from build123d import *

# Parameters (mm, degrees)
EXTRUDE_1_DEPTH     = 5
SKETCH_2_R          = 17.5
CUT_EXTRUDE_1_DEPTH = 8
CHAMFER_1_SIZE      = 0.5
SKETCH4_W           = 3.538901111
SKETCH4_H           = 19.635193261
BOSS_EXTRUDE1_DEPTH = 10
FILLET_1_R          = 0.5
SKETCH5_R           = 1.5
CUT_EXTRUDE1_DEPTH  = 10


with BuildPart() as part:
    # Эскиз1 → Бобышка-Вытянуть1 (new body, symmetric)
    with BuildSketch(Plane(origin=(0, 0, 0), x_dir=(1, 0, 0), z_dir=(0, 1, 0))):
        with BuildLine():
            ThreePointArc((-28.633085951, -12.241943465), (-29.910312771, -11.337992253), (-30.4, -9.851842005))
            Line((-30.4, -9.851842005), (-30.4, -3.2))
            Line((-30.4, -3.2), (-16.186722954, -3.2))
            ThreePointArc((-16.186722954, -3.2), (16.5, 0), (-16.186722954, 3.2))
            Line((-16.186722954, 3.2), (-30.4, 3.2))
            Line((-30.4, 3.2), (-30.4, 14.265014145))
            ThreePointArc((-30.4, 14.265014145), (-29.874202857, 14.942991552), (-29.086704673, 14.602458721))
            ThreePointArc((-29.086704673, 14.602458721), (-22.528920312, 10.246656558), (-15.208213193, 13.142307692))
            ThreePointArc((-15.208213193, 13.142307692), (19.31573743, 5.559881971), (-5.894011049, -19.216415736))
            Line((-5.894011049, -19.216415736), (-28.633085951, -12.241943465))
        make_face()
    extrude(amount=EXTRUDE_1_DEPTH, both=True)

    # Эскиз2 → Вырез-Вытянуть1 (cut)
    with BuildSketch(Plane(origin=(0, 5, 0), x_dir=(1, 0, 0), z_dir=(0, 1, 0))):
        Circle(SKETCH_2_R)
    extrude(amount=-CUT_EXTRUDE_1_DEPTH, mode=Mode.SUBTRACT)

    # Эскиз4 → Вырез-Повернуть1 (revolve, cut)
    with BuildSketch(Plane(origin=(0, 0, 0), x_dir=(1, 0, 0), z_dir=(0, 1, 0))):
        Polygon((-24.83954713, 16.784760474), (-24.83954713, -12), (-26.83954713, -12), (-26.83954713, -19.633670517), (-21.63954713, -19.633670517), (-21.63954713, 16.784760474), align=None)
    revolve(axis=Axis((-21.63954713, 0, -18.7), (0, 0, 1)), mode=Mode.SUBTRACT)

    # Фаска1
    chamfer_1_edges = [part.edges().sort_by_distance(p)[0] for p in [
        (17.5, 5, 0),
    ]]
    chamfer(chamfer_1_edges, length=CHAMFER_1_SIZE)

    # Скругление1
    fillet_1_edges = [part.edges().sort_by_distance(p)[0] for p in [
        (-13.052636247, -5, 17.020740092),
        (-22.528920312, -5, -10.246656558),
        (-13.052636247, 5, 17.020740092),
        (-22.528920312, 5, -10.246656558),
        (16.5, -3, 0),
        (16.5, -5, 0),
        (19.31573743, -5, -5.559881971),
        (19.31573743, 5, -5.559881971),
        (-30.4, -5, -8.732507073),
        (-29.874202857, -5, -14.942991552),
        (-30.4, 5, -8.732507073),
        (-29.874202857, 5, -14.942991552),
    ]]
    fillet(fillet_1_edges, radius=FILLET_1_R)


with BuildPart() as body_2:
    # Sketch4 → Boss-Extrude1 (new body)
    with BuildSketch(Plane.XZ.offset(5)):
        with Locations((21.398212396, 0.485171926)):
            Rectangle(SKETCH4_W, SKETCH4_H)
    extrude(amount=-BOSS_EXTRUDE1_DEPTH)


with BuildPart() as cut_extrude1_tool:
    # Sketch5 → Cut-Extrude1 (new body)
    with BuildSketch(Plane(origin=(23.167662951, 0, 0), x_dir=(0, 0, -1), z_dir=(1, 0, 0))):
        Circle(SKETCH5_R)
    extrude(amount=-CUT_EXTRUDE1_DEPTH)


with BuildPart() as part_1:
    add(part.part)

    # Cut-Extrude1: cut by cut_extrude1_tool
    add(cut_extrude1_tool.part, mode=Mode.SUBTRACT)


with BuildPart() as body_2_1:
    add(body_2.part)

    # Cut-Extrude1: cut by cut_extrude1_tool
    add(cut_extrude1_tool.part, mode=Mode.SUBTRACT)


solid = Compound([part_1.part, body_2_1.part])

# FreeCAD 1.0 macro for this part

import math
import FreeCAD as App
import Part
import Sketcher

V = App.Vector


def edges_at(feature, points):
    """Names of the edges that pass closest to the given points."""
    edges = feature.Shape.Edges
    near = lambda p: min(range(len(edges)), key=lambda i: edges[i].distToShape(Part.Vertex(*p))[0])
    return sorted({f"Edge{near(p) + 1}" for p in points})

doc = App.newDocument("Part")
params = doc.addObject("Spreadsheet::Sheet", "Params")
for row, (alias, value) in enumerate([
    ("sketch1_radius", "2.5 mm"),
    ("sketch1_radius2", "20.1 mm"),
    ("sketch1_radius3", "8.5 mm"),
    ("sketch1_radius4", "0.7 mm"),
    ("sketch1_radius5", "16.5 mm"),
    ("pad1_length", "10 mm"),
    ("sketch2_diameter", "35 mm"),
    ("pocket1_length", "8 mm"),
    ("sketch3_width", "2 mm"),
    ("sketch3_width2", "5.2 mm"),
    ("groove_angle", "360 deg"),
    ("chamfer_size", "0.5 mm"),
    ("fillet_radius", "0.5 mm"),
    ("pad2_length", "10 mm"),
    ("sketch5_diameter", "3 mm"),
    ("pad3_length", "10 mm"),
], start=1):
    params.set(f"A{row}", alias)
    params.set(f"B{row}", "=" + value)
    params.setAlias(f"B{row}", alias)

body = doc.addObject("PartDesign::Body", "Body")

# Sketch on XZ plane
sketch1 = body.newObject("Sketcher::SketchObject", "Sketch")
sketch1.AttachmentSupport = (doc.getObject("XZ_Plane"), [""])
sketch1.MapMode = "FlatFace"
sketch1.addGeometry(Part.ArcOfCircle(Part.Circle(V(-27.9, 9.851842, 0), V(0, 0, 1), 2.5), math.radians(107.051693), math.radians(180)), False)
sketch1.addGeometry(Part.LineSegment(V(-28.633086, 12.241943, 0), V(-5.894011, 19.216416, 0)), False)
sketch1.addGeometry(Part.ArcOfCircle(Part.Circle(V(0, 0, 0), V(0, 0, 1), 20.1), math.radians(-139.167783), math.radians(107.051693)), False)
sketch1.addGeometry(Part.ArcOfCircle(Part.Circle(V(-21.639547, -18.7, 0), V(0, 0, 1), 8.5), math.radians(40.832217), math.radians(151.179729)), False)
sketch1.addGeometry(Part.ArcOfCircle(Part.Circle(V(-29.7, -14.265014, 0), V(0, 0, 1), 0.7), math.radians(180), math.radians(331.179729)), False)
sketch1.addGeometry(Part.LineSegment(V(-30.4, -14.265014, 0), V(-30.4, -3.2, 0)), False)
sketch1.addGeometry(Part.LineSegment(V(-30.4, -3.2, 0), V(-16.186723, -3.2, 0)), False)
sketch1.addGeometry(Part.ArcOfCircle(Part.Circle(V(0, 0, 0), V(0, 0, 1), 16.5), math.radians(-168.817227), math.radians(168.817227)), False)
sketch1.addGeometry(Part.LineSegment(V(-16.186723, 3.2, 0), V(-30.4, 3.2, 0)), False)
sketch1.addGeometry(Part.LineSegment(V(-30.4, 3.2, 0), V(-30.4, 9.851842, 0)), False)
sketch1.addConstraint(Sketcher.Constraint("Tangent", 0, 1, 1, 1))
sketch1.addConstraint(Sketcher.Constraint("Tangent", 1, 2, 2, 2))
sketch1.addConstraint(Sketcher.Constraint("Tangent", 2, 1, 3, 1))
sketch1.addConstraint(Sketcher.Constraint("Tangent", 3, 2, 4, 2))
sketch1.addConstraint(Sketcher.Constraint("Tangent", 4, 1, 5, 1))
sketch1.addConstraint(Sketcher.Constraint("Coincident", 5, 2, 6, 1))
sketch1.addConstraint(Sketcher.Constraint("Coincident", 6, 2, 7, 1))
sketch1.addConstraint(Sketcher.Constraint("Coincident", 7, 2, 8, 1))
sketch1.addConstraint(Sketcher.Constraint("Coincident", 8, 2, 9, 1))
sketch1.addConstraint(Sketcher.Constraint("Tangent", 9, 2, 0, 2))
sketch1.addConstraint(Sketcher.Constraint("Vertical", 5))
sketch1.addConstraint(Sketcher.Constraint("Horizontal", 6))
sketch1.addConstraint(Sketcher.Constraint("Horizontal", 8))
sketch1.addConstraint(Sketcher.Constraint("Vertical", 9))
sketch1.addConstraint(Sketcher.Constraint("Coincident", 2, 3, -1, 1))
sketch1.addConstraint(Sketcher.Constraint("Coincident", 7, 3, -1, 1))
sketch1.addConstraint(Sketcher.Constraint("Symmetric", 5, 2, 8, 2, -1))
sketch1.addConstraint(Sketcher.Constraint("Radius", 0, 2.5))
sketch1.addConstraint(Sketcher.Constraint("Radius", 2, 20.1))
sketch1.addConstraint(Sketcher.Constraint("Radius", 3, 8.5))
sketch1.addConstraint(Sketcher.Constraint("Radius", 4, 0.7))
sketch1.addConstraint(Sketcher.Constraint("Radius", 7, 16.5))
sketch1.addConstraint(Sketcher.Constraint("DistanceX", 0, 3, -1, 1, 27.9))
sketch1.addConstraint(Sketcher.Constraint("DistanceY", 3, 3, -1, 1, 18.7))
sketch1.addConstraint(Sketcher.Constraint("DistanceY", 5, 2, -1, 1, 3.2))
sketch1.addConstraint(Sketcher.Constraint("DistanceY", 0, 3, 0, 1, 2.390101))
sketch1.setExpression("Constraints[17]", "Params.sketch1_radius")
sketch1.setExpression("Constraints[18]", "Params.sketch1_radius2")
sketch1.setExpression("Constraints[19]", "Params.sketch1_radius3")
sketch1.setExpression("Constraints[20]", "Params.sketch1_radius4")
sketch1.setExpression("Constraints[21]", "Params.sketch1_radius5")
pad1 = body.newObject("PartDesign::Pad", "Pad")
pad1.Profile = sketch1
pad1.setExpression("Length", "Params.pad1_length")
pad1.Midplane = True

# Sketch on XZ plane
sketch2 = body.newObject("Sketcher::SketchObject", "Sketch001")
sketch2.AttachmentSupport = (doc.getObject("XZ_Plane"), [""])
sketch2.MapMode = "FlatFace"
sketch2.AttachmentOffset = App.Placement(V(0, 0, -5), App.Rotation())
sketch2.addGeometry(Part.Circle(V(0, 0, 0), V(0, 0, 1), 17.5), False)
sketch2.addConstraint(Sketcher.Constraint("Coincident", 0, 3, -1, 1))
sketch2.addConstraint(Sketcher.Constraint("Diameter", 0, 35.0))
sketch2.setExpression("Constraints[1]", "Params.sketch2_diameter")
pocket1 = body.newObject("PartDesign::Pocket", "Pocket")
pocket1.Profile = sketch2
pocket1.setExpression("Length", "Params.pocket1_length")
pocket1.Reversed = True

# Sketch on XZ plane
sketch3 = body.newObject("Sketcher::SketchObject", "Sketch002")
sketch3.AttachmentSupport = (doc.getObject("XZ_Plane"), [""])
sketch3.MapMode = "FlatFace"
sketch3.addGeometry(Part.LineSegment(V(-24.839547, -16.78476, 0), V(-24.839547, 12, 0)), False)
sketch3.addGeometry(Part.LineSegment(V(-24.839547, 12, 0), V(-26.839547, 12, 0)), False)
sketch3.addGeometry(Part.LineSegment(V(-26.839547, 12, 0), V(-26.839547, 19.633671, 0)), False)
sketch3.addGeometry(Part.LineSegment(V(-26.839547, 19.633671, 0), V(-21.639547, 19.633671, 0)), False)
sketch3.addGeometry(Part.LineSegment(V(-21.639547, 19.633671, 0), V(-21.639547, -16.78476, 0)), False)
sketch3.addGeometry(Part.LineSegment(V(-21.639547, -16.78476, 0), V(-24.839547, -16.78476, 0)), False)
sketch3.addGeometry(Part.LineSegment(V(-21.639547, -16.78476, 0), V(-21.639547, 19.633671, 0)), True)  # axis
sketch3.addConstraint(Sketcher.Constraint("Coincident", 0, 2, 1, 1))
sketch3.addConstraint(Sketcher.Constraint("Coincident", 1, 2, 2, 1))
sketch3.addConstraint(Sketcher.Constraint("Coincident", 2, 2, 3, 1))
sketch3.addConstraint(Sketcher.Constraint("Coincident", 3, 2, 4, 1))
sketch3.addConstraint(Sketcher.Constraint("Coincident", 4, 2, 5, 1))
sketch3.addConstraint(Sketcher.Constraint("Coincident", 5, 2, 0, 1))
sketch3.addConstraint(Sketcher.Constraint("Vertical", 0))
sketch3.addConstraint(Sketcher.Constraint("Horizontal", 1))
sketch3.addConstraint(Sketcher.Constraint("Vertical", 2))
sketch3.addConstraint(Sketcher.Constraint("Horizontal", 3))
sketch3.addConstraint(Sketcher.Constraint("Vertical", 4))
sketch3.addConstraint(Sketcher.Constraint("Horizontal", 5))
sketch3.addConstraint(Sketcher.Constraint("Vertical", 6))
sketch3.addConstraint(Sketcher.Constraint("Coincident", 6, 1, 4, 2))
sketch3.addConstraint(Sketcher.Constraint("Horizontal", 2, 2, 6, 2))
sketch3.addConstraint(Sketcher.Constraint("DistanceX", 1, 2, 1, 1, 2.0))
sketch3.addConstraint(Sketcher.Constraint("DistanceX", 3, 1, 3, 2, 5.2))
sketch3.addConstraint(Sketcher.Constraint("DistanceY", -1, 1, 0, 2, 12.0))
sketch3.addConstraint(Sketcher.Constraint("DistanceY", 0, 1, 0, 2, 28.78476))
sketch3.addConstraint(Sketcher.Constraint("DistanceY", 2, 1, 2, 2, 7.633671))
sketch3.addConstraint(Sketcher.Constraint("DistanceX", 0, 2, -1, 1, 24.839547))
sketch3.setExpression("Constraints[15]", "Params.sketch3_width")
sketch3.setExpression("Constraints[16]", "Params.sketch3_width2")
groove = body.newObject("PartDesign::Groove", "Groove")
groove.Profile = sketch3
groove.ReferenceAxis = (sketch3, ["Axis0"])
groove.setExpression("Angle", "Params.groove_angle")
doc.recompute()

chamfer = body.newObject("PartDesign::Chamfer", "Chamfer")
chamfer.Base = (groove, edges_at(groove, [(17.5, 5, 0)]))
chamfer.setExpression("Size", "Params.chamfer_size")
doc.recompute()

fillet = body.newObject("PartDesign::Fillet", "Fillet")
fillet.Base = (chamfer, edges_at(chamfer, [
    (-13.053, -5, 17.021),
    (-22.529, -5, -10.247),
    (-13.053, 5, 17.021),
    (-22.529, 5, -10.247),
    (16.5, -3, 0),
    (16.5, -5, 0),
    (19.316, -5, -5.56),
    (19.316, 5, -5.56),
    (-30.4, -5, -8.733),
    (-29.874, -5, -14.943),
    (-30.4, 5, -8.733),
    (-29.874, 5, -14.943),
]))
fillet.setExpression("Radius", "Params.fillet_radius")
body2 = doc.addObject("PartDesign::Body", "Body001")

# Sketch on XZ plane
sketch4 = body2.newObject("Sketcher::SketchObject", "Sketch003")
sketch4.AttachmentSupport = (doc.getObject("XZ_Plane001"), [""])
sketch4.MapMode = "FlatFace"
sketch4.AttachmentOffset = App.Placement(V(0, 0, 5), App.Rotation())
sketch4.addGeometry(Part.LineSegment(V(19.628762, 10.302769, 0), V(19.628762, -9.332425, 0)), False)
sketch4.addGeometry(Part.LineSegment(V(19.628762, -9.332425, 0), V(23.167663, -9.332425, 0)), False)
sketch4.addGeometry(Part.LineSegment(V(23.167663, -9.332425, 0), V(23.167663, 10.302769, 0)), False)
sketch4.addGeometry(Part.LineSegment(V(23.167663, 10.302769, 0), V(19.628762, 10.302769, 0)), False)
sketch4.addConstraint(Sketcher.Constraint("Coincident", 0, 2, 1, 1))
sketch4.addConstraint(Sketcher.Constraint("Coincident", 1, 2, 2, 1))
sketch4.addConstraint(Sketcher.Constraint("Coincident", 2, 2, 3, 1))
sketch4.addConstraint(Sketcher.Constraint("Coincident", 3, 2, 0, 1))
sketch4.addConstraint(Sketcher.Constraint("Vertical", 0))
sketch4.addConstraint(Sketcher.Constraint("Horizontal", 1))
sketch4.addConstraint(Sketcher.Constraint("Vertical", 2))
sketch4.addConstraint(Sketcher.Constraint("Horizontal", 3))
sketch4.addConstraint(Sketcher.Constraint("DistanceX", 1, 1, 1, 2, 3.538901))
sketch4.addConstraint(Sketcher.Constraint("DistanceY", 0, 2, 0, 1, 19.635193))
sketch4.addConstraint(Sketcher.Constraint("DistanceX", -1, 1, 0, 2, 19.628762))
sketch4.addConstraint(Sketcher.Constraint("DistanceY", -1, 1, 2, 2, 10.302769))
pad2 = body2.newObject("PartDesign::Pad", "Pad001")
pad2.Profile = sketch4
pad2.setExpression("Length", "Params.pad2_length")
pad2.Reversed = True
body3 = doc.addObject("PartDesign::Body", "Body002")

# Sketch on YZ plane
sketch5 = body3.newObject("Sketcher::SketchObject", "Sketch004")
sketch5.AttachmentSupport = (doc.getObject("YZ_Plane002"), [""])
sketch5.MapMode = "FlatFace"
sketch5.AttachmentOffset = App.Placement(V(0, 0, 23.167663), App.Rotation())
sketch5.addGeometry(Part.Circle(V(0, 0, 0), V(0, 0, 1), 1.5), False)
sketch5.addConstraint(Sketcher.Constraint("Coincident", 0, 3, -1, 1))
sketch5.addConstraint(Sketcher.Constraint("Diameter", 0, 3.0))
sketch5.setExpression("Constraints[1]", "Params.sketch5_diameter")
pad3 = body3.newObject("PartDesign::Pad", "Pad002")
pad3.Profile = sketch5
pad3.setExpression("Length", "Params.pad3_length")
pad3.Reversed = True
doc.recompute()

body4 = doc.addObject("PartDesign::Body", "Body003")
body4.BaseFeature = body3
boolean = body.newObject("PartDesign::Boolean", "Boolean")
boolean.Type = "Cut"
boolean.addObjects([body4])
doc.recompute()

boolean2 = body2.newObject("PartDesign::Boolean", "Boolean001")
boolean2.Type = "Cut"
boolean2.addObjects([body3])

doc.recompute()
